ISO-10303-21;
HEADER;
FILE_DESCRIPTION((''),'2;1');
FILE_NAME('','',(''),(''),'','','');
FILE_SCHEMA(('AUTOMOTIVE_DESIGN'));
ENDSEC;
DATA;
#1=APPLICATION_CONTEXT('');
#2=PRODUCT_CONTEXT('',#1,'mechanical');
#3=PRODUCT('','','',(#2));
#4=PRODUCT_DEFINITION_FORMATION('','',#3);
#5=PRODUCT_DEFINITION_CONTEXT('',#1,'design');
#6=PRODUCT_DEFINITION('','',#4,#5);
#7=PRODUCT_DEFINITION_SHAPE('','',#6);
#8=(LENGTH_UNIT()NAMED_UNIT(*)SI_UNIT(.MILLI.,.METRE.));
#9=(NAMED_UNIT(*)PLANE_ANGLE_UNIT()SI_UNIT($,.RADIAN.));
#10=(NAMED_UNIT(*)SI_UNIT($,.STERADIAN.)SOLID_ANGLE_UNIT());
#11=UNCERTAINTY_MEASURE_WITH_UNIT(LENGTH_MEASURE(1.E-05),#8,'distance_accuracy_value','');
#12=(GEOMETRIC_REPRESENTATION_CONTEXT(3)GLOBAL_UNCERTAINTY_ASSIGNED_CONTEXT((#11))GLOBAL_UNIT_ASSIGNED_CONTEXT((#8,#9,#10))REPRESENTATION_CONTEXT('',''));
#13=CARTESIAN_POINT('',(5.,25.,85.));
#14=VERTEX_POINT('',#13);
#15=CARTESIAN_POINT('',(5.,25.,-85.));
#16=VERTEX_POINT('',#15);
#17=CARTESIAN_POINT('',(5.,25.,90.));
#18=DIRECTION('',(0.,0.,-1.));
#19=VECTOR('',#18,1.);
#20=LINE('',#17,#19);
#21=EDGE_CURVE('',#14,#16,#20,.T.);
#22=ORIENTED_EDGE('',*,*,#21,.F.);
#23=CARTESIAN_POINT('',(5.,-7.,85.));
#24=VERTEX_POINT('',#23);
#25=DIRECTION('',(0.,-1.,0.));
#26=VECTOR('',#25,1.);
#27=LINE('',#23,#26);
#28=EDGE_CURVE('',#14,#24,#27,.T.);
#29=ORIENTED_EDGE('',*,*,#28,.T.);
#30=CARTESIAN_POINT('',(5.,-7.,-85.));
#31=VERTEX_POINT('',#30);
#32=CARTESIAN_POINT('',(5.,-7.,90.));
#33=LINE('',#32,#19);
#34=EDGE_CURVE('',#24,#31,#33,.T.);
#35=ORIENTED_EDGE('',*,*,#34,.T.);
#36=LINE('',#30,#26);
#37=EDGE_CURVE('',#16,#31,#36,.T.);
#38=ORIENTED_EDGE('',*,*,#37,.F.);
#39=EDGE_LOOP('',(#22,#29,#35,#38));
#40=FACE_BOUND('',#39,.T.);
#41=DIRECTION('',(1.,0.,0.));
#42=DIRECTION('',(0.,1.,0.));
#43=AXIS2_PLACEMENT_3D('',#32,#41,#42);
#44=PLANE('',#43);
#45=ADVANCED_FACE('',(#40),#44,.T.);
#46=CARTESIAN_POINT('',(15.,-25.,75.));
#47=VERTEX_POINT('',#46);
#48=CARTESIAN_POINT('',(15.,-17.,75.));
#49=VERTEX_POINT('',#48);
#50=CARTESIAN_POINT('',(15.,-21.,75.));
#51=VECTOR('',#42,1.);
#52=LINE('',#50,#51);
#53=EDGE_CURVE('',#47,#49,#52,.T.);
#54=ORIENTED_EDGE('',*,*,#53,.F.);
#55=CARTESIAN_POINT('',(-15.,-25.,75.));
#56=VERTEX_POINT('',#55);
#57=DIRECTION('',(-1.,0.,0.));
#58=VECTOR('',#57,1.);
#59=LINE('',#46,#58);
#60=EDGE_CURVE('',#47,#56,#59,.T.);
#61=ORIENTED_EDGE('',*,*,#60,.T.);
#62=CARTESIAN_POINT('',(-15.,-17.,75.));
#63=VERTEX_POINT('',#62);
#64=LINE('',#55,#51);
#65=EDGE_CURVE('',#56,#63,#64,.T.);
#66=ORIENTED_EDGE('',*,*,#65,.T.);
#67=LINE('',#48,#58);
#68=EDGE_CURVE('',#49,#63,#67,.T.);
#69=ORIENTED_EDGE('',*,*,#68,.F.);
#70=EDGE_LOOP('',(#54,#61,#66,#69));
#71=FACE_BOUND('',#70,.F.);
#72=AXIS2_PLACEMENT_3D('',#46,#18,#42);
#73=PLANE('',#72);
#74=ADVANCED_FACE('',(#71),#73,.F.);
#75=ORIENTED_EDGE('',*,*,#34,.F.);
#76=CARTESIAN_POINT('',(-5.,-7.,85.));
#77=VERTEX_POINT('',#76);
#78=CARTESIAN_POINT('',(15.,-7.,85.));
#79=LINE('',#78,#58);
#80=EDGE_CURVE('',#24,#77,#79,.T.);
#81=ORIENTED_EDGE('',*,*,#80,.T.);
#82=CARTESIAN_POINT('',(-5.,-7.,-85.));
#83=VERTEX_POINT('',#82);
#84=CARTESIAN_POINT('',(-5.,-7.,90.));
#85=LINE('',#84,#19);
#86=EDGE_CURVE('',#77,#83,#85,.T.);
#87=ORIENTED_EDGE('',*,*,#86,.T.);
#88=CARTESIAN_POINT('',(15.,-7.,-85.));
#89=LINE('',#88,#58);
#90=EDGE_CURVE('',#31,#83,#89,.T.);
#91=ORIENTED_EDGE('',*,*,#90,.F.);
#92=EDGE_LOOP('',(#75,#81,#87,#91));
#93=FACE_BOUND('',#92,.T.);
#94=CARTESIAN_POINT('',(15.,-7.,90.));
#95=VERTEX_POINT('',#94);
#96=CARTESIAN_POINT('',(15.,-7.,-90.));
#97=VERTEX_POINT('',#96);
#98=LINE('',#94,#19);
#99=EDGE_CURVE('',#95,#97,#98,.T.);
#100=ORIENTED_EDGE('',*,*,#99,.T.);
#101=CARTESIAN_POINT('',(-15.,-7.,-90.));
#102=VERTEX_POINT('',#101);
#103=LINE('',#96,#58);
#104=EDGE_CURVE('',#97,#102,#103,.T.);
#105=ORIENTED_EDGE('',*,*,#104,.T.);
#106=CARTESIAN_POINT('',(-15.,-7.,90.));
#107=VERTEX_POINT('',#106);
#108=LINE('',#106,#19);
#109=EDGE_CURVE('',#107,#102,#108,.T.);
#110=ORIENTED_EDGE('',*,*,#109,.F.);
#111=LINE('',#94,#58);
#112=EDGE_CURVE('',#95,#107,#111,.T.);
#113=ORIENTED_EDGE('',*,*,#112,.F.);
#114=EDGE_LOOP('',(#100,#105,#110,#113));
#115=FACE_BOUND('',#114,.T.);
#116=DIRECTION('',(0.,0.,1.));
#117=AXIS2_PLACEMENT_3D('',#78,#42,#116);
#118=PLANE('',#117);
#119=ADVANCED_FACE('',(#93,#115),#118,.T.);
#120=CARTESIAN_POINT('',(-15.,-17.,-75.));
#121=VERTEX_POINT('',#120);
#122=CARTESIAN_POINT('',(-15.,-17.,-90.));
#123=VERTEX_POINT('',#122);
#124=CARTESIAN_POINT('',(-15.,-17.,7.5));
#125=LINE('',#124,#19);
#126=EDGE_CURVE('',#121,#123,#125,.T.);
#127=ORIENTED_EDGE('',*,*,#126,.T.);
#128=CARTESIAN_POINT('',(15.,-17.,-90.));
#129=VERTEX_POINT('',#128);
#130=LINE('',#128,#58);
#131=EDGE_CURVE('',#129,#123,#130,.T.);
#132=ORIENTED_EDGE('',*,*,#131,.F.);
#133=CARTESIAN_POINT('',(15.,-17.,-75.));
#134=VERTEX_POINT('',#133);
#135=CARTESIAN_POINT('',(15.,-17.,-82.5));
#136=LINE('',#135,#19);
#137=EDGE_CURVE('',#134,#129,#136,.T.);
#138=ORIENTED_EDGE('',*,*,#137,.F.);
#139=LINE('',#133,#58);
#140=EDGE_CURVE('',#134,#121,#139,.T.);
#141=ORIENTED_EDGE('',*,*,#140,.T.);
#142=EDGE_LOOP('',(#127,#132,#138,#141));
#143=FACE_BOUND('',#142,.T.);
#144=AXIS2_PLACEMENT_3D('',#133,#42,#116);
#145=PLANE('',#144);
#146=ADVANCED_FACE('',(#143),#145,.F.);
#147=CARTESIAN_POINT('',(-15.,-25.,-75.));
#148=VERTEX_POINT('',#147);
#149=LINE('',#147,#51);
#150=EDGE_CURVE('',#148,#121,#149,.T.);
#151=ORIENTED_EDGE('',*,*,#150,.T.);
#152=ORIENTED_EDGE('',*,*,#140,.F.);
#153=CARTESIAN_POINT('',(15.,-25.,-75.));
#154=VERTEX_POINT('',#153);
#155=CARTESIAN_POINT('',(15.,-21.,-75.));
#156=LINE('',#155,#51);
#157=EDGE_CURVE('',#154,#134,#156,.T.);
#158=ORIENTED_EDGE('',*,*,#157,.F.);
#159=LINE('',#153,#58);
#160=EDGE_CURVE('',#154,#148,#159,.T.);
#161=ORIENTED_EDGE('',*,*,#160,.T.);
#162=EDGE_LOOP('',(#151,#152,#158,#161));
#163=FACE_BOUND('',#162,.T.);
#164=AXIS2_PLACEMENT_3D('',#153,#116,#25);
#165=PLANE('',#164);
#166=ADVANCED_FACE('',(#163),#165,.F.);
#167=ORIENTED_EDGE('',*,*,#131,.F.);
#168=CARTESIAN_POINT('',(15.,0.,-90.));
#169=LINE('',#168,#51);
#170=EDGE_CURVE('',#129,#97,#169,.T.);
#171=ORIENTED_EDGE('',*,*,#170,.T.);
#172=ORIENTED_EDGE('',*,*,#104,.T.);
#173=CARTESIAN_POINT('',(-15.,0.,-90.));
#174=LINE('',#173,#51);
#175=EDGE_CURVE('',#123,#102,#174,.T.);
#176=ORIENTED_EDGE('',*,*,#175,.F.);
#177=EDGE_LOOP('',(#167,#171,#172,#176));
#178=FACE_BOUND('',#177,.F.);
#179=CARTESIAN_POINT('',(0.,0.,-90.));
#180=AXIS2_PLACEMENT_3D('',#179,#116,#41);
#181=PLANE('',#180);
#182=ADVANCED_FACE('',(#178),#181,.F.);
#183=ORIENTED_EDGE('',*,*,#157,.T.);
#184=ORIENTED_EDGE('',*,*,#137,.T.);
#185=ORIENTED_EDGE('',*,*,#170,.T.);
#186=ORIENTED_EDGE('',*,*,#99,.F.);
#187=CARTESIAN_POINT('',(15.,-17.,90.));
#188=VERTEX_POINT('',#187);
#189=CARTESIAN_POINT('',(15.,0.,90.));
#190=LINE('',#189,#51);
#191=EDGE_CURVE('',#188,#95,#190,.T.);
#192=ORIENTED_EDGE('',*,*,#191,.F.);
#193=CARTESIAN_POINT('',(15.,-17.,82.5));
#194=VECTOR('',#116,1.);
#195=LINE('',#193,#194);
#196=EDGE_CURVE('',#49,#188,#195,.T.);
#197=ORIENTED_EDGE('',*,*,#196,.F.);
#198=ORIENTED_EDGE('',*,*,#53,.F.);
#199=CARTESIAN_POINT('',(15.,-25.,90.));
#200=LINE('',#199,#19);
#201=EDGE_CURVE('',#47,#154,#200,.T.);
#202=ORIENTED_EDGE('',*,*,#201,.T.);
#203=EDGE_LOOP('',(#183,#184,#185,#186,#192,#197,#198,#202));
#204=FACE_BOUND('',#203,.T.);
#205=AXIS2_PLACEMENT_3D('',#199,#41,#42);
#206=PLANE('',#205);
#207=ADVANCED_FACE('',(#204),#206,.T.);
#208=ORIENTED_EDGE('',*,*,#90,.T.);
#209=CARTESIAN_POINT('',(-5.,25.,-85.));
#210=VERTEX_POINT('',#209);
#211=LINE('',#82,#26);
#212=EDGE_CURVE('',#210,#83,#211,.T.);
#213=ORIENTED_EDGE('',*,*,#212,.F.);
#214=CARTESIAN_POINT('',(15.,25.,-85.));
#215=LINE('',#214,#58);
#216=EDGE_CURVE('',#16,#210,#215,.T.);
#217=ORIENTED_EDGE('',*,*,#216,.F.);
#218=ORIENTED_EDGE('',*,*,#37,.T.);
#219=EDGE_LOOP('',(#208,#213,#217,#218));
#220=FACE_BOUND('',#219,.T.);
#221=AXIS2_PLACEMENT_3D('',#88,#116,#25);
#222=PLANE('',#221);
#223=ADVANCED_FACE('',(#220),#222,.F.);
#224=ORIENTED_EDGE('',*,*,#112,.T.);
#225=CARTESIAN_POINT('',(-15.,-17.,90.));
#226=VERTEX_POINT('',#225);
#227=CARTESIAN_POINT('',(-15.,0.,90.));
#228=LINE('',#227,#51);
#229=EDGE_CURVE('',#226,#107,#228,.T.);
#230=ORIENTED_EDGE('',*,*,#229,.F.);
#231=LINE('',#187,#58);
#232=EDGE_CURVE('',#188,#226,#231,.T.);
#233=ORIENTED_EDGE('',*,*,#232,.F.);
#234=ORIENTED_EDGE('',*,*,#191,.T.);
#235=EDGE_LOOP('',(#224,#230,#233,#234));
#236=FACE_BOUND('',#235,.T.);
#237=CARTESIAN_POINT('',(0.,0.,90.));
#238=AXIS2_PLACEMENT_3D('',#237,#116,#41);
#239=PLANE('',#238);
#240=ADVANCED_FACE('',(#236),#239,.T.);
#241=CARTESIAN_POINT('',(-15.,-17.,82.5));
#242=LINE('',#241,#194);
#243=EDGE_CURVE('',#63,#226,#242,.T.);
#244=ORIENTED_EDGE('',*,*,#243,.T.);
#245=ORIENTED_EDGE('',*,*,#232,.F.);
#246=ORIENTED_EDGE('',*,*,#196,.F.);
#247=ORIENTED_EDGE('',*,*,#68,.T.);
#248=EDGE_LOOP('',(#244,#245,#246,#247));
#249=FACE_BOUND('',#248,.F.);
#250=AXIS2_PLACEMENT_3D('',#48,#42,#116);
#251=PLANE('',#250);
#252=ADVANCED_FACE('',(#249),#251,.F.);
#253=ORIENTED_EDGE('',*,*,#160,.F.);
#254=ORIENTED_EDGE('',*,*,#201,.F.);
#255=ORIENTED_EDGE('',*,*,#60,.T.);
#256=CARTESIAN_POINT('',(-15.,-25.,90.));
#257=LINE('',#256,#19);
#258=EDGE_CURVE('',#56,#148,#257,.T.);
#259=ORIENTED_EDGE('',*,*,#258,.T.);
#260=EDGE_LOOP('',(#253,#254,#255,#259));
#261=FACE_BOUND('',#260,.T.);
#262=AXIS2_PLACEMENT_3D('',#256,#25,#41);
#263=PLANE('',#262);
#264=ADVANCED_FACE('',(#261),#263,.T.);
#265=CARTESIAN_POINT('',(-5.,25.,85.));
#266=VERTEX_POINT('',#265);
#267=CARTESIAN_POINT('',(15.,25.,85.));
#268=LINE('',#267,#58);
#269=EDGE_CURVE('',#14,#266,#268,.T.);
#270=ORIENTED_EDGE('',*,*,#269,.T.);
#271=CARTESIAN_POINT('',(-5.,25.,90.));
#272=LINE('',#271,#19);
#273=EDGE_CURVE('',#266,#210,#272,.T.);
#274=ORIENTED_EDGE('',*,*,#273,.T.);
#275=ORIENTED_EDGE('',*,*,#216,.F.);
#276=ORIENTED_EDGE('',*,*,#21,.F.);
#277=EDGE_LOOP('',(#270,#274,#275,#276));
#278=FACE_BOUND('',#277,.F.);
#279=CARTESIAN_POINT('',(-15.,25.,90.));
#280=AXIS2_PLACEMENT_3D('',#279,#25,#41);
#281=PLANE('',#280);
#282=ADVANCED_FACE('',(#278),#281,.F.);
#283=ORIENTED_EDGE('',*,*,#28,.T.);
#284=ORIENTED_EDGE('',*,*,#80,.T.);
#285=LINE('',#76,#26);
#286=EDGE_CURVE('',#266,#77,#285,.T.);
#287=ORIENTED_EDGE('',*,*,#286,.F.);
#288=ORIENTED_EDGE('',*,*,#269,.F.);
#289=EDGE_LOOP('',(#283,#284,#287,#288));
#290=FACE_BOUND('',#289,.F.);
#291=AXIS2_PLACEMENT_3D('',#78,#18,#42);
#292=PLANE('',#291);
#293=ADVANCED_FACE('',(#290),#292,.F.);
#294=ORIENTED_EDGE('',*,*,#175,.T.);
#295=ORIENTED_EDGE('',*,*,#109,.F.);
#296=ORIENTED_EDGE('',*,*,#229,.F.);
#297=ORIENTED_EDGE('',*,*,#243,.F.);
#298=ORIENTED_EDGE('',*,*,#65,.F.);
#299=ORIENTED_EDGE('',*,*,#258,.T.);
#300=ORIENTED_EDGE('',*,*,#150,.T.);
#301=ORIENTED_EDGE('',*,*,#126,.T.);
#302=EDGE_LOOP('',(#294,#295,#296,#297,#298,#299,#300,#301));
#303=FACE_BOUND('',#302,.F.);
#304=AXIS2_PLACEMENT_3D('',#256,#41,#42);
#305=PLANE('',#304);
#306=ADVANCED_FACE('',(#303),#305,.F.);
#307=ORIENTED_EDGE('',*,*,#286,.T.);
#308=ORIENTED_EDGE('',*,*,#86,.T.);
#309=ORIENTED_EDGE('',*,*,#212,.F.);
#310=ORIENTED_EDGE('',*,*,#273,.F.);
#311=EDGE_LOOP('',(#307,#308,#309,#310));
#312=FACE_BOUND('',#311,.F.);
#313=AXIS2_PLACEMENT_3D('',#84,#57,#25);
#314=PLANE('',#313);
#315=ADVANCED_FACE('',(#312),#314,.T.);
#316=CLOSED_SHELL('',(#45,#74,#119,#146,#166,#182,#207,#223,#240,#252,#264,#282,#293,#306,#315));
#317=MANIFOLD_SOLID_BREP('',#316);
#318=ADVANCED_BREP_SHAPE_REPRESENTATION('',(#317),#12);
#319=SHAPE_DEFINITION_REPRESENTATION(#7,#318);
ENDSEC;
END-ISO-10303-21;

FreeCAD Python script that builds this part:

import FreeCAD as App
import Part
import Sketcher

V = App.Vector
Q = App.Units.Quantity

doc = App.newDocument("Part")
params = doc.addObject("Spreadsheet::Sheet", "Params")
for row, (alias, value) in enumerate([
    ("sketch1_width", "30 mm"),
    ("sketch1_height", "50 mm"),
    ("pad1_length", "180 mm"),
    ("sketch2_width", "8 mm"),
    ("sketch2_width2", "32 mm"),
    ("sketch2_height", "15 mm"),
    ("sketch2_height2", "5 mm"),
    ("sketch3_width", "10 mm"),
    ("sketch3_height", "32 mm"),
], start=1):
    params.set(f"A{row}", alias)
    params.set(f"B{row}", "=" + value)
    params.setAlias(f"B{row}", alias)

body = doc.addObject("PartDesign::Body", "Body")

# Sketch on XY plane
sketch1 = doc.addObject("Sketcher::SketchObject", "Sketch")
body.addObject(sketch1)
sketch1.AttachmentSupport = (doc.XY_Plane, [""])
sketch1.MapMode = "FlatFace"
sketch1.AttachmentOffset = App.Placement(V(0, 0, 90), App.Rotation())
sketch1.addGeometry(Part.LineSegment(V(-15, 25, 0), V(-15, -25, 0)), False)
sketch1.addGeometry(Part.LineSegment(V(-15, -25, 0), V(15, -25, 0)), False)
sketch1.addGeometry(Part.LineSegment(V(15, -25, 0), V(15, 25, 0)), False)
sketch1.addGeometry(Part.LineSegment(V(15, 25, 0), V(-15, 25, 0)), False)
sketch1.addConstraint(Sketcher.Constraint("Coincident", 0, 2, 1, 1))
sketch1.addConstraint(Sketcher.Constraint("Coincident", 1, 2, 2, 1))
sketch1.addConstraint(Sketcher.Constraint("Coincident", 2, 2, 3, 1))
sketch1.addConstraint(Sketcher.Constraint("Coincident", 3, 2, 0, 1))
sketch1.addConstraint(Sketcher.Constraint("Vertical", 0))
sketch1.addConstraint(Sketcher.Constraint("Horizontal", 1))
sketch1.addConstraint(Sketcher.Constraint("Vertical", 2))
sketch1.addConstraint(Sketcher.Constraint("Horizontal", 3))
sketch1.addConstraint(Sketcher.Constraint("Symmetric", 0, 2, 2, 2, -1, 1))
sketch1.addConstraint(Sketcher.Constraint("DistanceX", 1, 1, 1, 2, Q("30 mm")))
sketch1.addConstraint(Sketcher.Constraint("DistanceY", 0, 2, 0, 1, Q("50 mm")))
sketch1.setExpression("Constraints[9]", "Params.sketch1_width")
sketch1.setExpression("Constraints[10]", "Params.sketch1_height")
pad1 = doc.addObject("PartDesign::Pad", "Pad")
body.addObject(pad1)
pad1.Profile = sketch1
pad1.setExpression("Length", "Params.pad1_length")
pad1.Reversed = True

# Sketch on YZ plane
sketch2 = doc.addObject("Sketcher::SketchObject", "Sketch001")
body.addObject(sketch2)
sketch2.AttachmentSupport = (doc.YZ_Plane, [""])
sketch2.MapMode = "FlatFace"
sketch2.AttachmentOffset = App.Placement(V(0, 0, 15), App.Rotation())
sketch2.addGeometry(Part.LineSegment(V(-25, 90, 0), V(-25, 75, 0)), False)
sketch2.addGeometry(Part.LineSegment(V(-25, 75, 0), V(-17, 75, 0)), False)
sketch2.addGeometry(Part.LineSegment(V(-17, 75, 0), V(-17, 90, 0)), False)
sketch2.addGeometry(Part.LineSegment(V(-17, 90, 0), V(-25, 90, 0)), False)
sketch2.addGeometry(Part.LineSegment(V(-7, 90, 0), V(-7, 85, 0)), False)
sketch2.addGeometry(Part.LineSegment(V(-7, 85, 0), V(25, 85, 0)), False)
sketch2.addGeometry(Part.LineSegment(V(25, 85, 0), V(25, 90, 0)), False)
sketch2.addGeometry(Part.LineSegment(V(25, 90, 0), V(-7, 90, 0)), False)
sketch2.addConstraint(Sketcher.Constraint("Coincident", 0, 2, 1, 1))
sketch2.addConstraint(Sketcher.Constraint("Coincident", 1, 2, 2, 1))
sketch2.addConstraint(Sketcher.Constraint("Coincident", 2, 2, 3, 1))
sketch2.addConstraint(Sketcher.Constraint("Coincident", 3, 2, 0, 1))
sketch2.addConstraint(Sketcher.Constraint("Coincident", 4, 2, 5, 1))
sketch2.addConstraint(Sketcher.Constraint("Coincident", 5, 2, 6, 1))
sketch2.addConstraint(Sketcher.Constraint("Coincident", 6, 2, 7, 1))
sketch2.addConstraint(Sketcher.Constraint("Coincident", 7, 2, 4, 1))
sketch2.addConstraint(Sketcher.Constraint("Vertical", 0))
sketch2.addConstraint(Sketcher.Constraint("Horizontal", 1))
sketch2.addConstraint(Sketcher.Constraint("Vertical", 2))
sketch2.addConstraint(Sketcher.Constraint("Horizontal", 3))
sketch2.addConstraint(Sketcher.Constraint("Vertical", 4))
sketch2.addConstraint(Sketcher.Constraint("Horizontal", 5))
sketch2.addConstraint(Sketcher.Constraint("Vertical", 6))
sketch2.addConstraint(Sketcher.Constraint("Horizontal", 7))
sketch2.addConstraint(Sketcher.Constraint("Symmetric", 3, 2, 6, 2, -2))
sketch2.addConstraint(Sketcher.Constraint("DistanceX", 1, 1, 1, 2, Q("8 mm")))
sketch2.addConstraint(Sketcher.Constraint("DistanceX", 5, 1, 5, 2, Q("32 mm")))
sketch2.addConstraint(Sketcher.Constraint("DistanceY", 0, 2, 0, 1, Q("15 mm")))
sketch2.addConstraint(Sketcher.Constraint("DistanceY", 4, 2, 4, 1, Q("5 mm")))
sketch2.addConstraint(Sketcher.Constraint("DistanceX", 0, 2, -1, 1, Q("25 mm")))
sketch2.addConstraint(Sketcher.Constraint("DistanceY", -1, 1, 0, 2, Q("75 mm")))
sketch2.setExpression("Constraints[17]", "Params.sketch2_width")
sketch2.setExpression("Constraints[18]", "Params.sketch2_width2")
sketch2.setExpression("Constraints[19]", "Params.sketch2_height")
sketch2.setExpression("Constraints[20]", "Params.sketch2_height2")
pocket1 = doc.addObject("PartDesign::Pocket", "Pocket")
body.addObject(pocket1)
pocket1.Profile = sketch2
pocket1.Type = "ThroughAll"
doc.recompute()

mirrored = doc.addObject("PartDesign::Mirrored", "Mirrored")
body.addObject(mirrored)
mirrored.Originals = [pocket1]
mirrored.MirrorPlane = (doc.XY_Plane, [""])
body.Tip = mirrored

# Sketch on XY plane
sketch3 = doc.addObject("Sketcher::SketchObject", "Sketch002")
body.addObject(sketch3)
sketch3.AttachmentSupport = (doc.XY_Plane, [""])
sketch3.MapMode = "FlatFace"
sketch3.AttachmentOffset = App.Placement(V(0, 0, 90), App.Rotation())
sketch3.addGeometry(Part.LineSegment(V(5, 25, 0), V(5, -7, 0)), False)
sketch3.addGeometry(Part.LineSegment(V(5, -7, 0), V(15, -7, 0)), False)
sketch3.addGeometry(Part.LineSegment(V(15, -7, 0), V(15, 25, 0)), False)
sketch3.addGeometry(Part.LineSegment(V(15, 25, 0), V(5, 25, 0)), False)
sketch3.addConstraint(Sketcher.Constraint("Coincident", 0, 2, 1, 1))
sketch3.addConstraint(Sketcher.Constraint("Coincident", 1, 2, 2, 1))
sketch3.addConstraint(Sketcher.Constraint("Coincident", 2, 2, 3, 1))
sketch3.addConstraint(Sketcher.Constraint("Coincident", 3, 2, 0, 1))
sketch3.addConstraint(Sketcher.Constraint("Vertical", 0))
sketch3.addConstraint(Sketcher.Constraint("Horizontal", 1))
sketch3.addConstraint(Sketcher.Constraint("Vertical", 2))
sketch3.addConstraint(Sketcher.Constraint("Horizontal", 3))
sketch3.addConstraint(Sketcher.Constraint("DistanceX", 1, 1, 1, 2, Q("10 mm")))
sketch3.addConstraint(Sketcher.Constraint("DistanceY", 0, 2, 0, 1, Q("32 mm")))
sketch3.addConstraint(Sketcher.Constraint("DistanceX", -1, 1, 0, 2, Q("5 mm")))
sketch3.addConstraint(Sketcher.Constraint("DistanceY", 0, 2, -1, 1, Q("7 mm")))
sketch3.setExpression("Constraints[8]", "Params.sketch3_width")
sketch3.setExpression("Constraints[9]", "Params.sketch3_height")
pocket2 = doc.addObject("PartDesign::Pocket", "Pocket001")
body.addObject(pocket2)
pocket2.Profile = sketch3
pocket2.Type = "ThroughAll"
doc.recompute()

mirrored2 = doc.addObject("PartDesign::Mirrored", "Mirrored001")
body.addObject(mirrored2)
mirrored2.Originals = [pocket2]
mirrored2.MirrorPlane = (doc.YZ_Plane, [""])
body.Tip = mirrored2

doc.recompute()
